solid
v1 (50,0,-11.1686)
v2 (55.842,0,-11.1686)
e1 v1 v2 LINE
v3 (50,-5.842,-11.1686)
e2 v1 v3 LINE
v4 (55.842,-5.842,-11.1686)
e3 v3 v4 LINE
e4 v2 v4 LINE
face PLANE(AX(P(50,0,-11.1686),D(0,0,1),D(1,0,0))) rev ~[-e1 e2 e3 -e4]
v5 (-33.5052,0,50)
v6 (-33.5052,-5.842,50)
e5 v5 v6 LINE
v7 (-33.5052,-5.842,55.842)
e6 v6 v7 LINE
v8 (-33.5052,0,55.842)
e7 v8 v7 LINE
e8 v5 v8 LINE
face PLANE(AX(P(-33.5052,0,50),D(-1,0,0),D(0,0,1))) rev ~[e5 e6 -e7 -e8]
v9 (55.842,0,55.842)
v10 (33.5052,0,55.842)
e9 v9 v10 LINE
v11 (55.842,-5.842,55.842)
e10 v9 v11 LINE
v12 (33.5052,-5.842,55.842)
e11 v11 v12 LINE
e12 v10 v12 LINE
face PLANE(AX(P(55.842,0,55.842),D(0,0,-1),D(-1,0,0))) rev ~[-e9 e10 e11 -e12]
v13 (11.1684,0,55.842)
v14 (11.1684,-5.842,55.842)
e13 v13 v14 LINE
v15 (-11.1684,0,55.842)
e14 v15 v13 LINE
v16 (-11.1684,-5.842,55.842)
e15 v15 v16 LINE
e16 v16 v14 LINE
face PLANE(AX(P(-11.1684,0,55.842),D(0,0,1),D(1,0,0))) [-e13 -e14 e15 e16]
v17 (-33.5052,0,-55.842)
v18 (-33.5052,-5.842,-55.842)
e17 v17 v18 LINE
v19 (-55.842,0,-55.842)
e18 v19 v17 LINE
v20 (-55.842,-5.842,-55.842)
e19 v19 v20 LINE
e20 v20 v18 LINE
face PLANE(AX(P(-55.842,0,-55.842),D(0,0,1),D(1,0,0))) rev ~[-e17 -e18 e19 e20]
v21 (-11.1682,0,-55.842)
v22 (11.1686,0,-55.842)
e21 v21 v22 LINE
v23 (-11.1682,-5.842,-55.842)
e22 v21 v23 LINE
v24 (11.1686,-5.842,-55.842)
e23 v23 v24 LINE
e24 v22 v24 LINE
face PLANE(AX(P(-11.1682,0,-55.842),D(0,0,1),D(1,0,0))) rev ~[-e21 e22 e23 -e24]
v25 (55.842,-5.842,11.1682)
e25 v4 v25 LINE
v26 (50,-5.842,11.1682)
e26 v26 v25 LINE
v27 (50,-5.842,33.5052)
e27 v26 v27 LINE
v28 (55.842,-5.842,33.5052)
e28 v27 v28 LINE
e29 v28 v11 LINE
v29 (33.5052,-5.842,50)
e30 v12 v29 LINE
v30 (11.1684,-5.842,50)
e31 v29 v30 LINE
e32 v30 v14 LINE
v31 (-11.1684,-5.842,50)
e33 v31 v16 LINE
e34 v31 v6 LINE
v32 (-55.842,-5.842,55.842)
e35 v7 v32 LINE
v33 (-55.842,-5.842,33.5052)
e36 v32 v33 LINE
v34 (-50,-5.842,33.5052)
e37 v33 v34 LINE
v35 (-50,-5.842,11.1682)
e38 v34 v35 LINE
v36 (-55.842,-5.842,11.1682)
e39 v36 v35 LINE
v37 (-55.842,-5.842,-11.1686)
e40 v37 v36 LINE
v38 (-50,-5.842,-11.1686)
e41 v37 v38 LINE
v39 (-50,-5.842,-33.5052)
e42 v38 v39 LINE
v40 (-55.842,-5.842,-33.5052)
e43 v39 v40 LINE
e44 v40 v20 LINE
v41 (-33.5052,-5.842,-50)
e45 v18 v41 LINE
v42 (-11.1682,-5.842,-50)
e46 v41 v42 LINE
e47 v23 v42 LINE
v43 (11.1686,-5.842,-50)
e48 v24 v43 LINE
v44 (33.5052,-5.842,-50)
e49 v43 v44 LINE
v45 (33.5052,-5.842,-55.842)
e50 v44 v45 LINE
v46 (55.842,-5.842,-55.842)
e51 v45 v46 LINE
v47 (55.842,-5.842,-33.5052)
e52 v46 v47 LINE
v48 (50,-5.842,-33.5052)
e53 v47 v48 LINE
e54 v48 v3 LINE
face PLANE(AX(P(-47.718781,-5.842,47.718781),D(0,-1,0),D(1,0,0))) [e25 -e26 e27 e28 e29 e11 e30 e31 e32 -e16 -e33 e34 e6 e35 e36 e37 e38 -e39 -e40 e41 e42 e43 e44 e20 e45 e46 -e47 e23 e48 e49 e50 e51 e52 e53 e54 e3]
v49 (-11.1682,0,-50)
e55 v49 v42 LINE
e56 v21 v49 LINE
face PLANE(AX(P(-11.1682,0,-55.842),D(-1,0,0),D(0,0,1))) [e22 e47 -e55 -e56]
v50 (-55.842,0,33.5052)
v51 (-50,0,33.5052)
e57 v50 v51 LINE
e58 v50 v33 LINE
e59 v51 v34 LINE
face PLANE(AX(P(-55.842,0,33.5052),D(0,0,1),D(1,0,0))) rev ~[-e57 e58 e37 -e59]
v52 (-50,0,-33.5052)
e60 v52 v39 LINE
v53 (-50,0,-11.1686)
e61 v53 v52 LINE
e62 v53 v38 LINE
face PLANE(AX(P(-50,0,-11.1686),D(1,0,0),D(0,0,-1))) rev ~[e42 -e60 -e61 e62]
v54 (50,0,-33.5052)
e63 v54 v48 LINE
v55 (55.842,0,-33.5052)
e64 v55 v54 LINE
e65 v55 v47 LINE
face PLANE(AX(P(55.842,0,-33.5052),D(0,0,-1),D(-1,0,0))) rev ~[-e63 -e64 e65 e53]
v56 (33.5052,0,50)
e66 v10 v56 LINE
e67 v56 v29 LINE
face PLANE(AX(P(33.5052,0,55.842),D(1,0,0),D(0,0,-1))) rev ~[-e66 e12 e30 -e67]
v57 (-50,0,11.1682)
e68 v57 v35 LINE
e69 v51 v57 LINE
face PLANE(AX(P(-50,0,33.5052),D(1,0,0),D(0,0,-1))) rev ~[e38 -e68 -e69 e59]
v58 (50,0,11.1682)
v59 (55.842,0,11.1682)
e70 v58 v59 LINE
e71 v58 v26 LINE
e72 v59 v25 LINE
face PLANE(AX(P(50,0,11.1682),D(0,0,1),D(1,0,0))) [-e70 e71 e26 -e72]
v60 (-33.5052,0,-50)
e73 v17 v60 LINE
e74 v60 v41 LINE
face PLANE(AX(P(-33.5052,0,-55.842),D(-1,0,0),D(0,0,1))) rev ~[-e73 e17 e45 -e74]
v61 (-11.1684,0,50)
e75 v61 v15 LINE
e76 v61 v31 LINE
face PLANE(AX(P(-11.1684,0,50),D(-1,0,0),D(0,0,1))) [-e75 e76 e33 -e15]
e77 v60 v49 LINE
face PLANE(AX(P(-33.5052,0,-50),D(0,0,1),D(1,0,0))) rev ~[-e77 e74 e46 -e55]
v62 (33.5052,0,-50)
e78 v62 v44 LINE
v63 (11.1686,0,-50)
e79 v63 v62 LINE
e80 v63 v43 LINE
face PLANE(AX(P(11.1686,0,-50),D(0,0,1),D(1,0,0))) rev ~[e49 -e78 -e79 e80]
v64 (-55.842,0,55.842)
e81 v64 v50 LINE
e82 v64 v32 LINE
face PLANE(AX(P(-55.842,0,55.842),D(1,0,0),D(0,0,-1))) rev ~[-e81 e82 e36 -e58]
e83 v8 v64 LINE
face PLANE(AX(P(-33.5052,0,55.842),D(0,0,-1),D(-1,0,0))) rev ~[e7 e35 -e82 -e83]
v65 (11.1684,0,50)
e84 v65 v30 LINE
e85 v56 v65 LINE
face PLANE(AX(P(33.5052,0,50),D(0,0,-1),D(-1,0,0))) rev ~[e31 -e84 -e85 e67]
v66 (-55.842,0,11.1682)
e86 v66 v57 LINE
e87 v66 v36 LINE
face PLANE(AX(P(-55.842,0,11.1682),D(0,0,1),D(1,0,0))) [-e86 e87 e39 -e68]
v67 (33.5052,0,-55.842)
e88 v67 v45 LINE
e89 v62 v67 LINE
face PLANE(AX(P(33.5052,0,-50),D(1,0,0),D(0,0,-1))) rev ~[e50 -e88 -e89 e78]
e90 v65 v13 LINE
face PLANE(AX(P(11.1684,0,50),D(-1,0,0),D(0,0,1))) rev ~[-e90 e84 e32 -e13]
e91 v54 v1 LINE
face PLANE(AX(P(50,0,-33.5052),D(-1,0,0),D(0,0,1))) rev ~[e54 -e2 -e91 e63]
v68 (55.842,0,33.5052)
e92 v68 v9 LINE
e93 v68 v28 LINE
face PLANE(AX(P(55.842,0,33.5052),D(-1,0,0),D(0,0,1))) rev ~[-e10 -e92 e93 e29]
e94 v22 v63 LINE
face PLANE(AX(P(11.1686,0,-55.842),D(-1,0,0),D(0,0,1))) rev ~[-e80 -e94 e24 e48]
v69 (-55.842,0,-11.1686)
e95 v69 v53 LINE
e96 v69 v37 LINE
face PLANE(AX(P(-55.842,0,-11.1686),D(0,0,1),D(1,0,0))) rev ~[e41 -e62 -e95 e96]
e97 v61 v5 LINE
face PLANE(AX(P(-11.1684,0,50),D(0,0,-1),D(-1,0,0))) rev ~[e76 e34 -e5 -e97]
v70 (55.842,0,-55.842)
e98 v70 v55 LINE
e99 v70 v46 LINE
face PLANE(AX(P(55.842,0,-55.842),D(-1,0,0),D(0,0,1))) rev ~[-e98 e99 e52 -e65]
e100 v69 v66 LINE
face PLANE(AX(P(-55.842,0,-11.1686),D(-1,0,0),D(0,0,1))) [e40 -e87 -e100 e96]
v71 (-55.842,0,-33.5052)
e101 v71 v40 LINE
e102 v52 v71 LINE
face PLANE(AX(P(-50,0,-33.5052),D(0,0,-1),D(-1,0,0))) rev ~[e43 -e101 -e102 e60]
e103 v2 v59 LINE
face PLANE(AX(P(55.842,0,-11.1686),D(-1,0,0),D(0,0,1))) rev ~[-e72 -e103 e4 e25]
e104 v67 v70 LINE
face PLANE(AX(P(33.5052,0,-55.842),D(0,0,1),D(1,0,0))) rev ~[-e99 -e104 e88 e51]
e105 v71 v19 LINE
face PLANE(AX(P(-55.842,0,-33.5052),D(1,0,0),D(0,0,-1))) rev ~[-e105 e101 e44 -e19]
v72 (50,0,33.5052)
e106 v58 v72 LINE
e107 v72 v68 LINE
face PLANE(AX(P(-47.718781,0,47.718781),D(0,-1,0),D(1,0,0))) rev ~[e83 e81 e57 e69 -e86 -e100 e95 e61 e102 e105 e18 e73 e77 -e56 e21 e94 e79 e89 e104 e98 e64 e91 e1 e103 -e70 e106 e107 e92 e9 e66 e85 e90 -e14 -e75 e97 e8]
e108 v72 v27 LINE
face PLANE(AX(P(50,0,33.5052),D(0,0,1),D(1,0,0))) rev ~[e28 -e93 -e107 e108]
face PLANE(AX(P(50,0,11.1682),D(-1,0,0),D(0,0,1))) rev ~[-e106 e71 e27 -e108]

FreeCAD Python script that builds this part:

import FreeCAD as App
import Part
import Sketcher
from FreeCAD import Vector
Q = App.Units.Quantity


def add_polygon(sketch, points):
    """Adds a closed chain of lines whose ends are joined by coincident constraints."""
    first, n = sketch.GeometryCount, len(points)
    for a, b in zip(points, points[1:] + points[:1]):
        sketch.addGeometry(Part.LineSegment(App.Vector(*a, 0), App.Vector(*b, 0)), False)
    for i in range(n):
        sketch.addConstraint(Sketcher.Constraint("Coincident", first + i, 2, first + (i + 1) % n, 1))

doc = App.newDocument("Part")
body = doc.addObject("PartDesign::Body", "Body")

sketch1 = body.newObject("Sketcher::SketchObject", "Sketch")
sketch1.AttachmentSupport = (doc.getObject("XZ_Plane"), [""])
sketch1.MapMode = "FlatFace"
add_polygon(sketch1, [(-34, 50), (-34, 56), (-56, 56), (-56, 34), (-50, 34), (-50, 11), (-56, 11), (-56, -11), (-50, -11), (-50, -34), (-56, -34), (-56, -56), (-34, -56), (-34, -50), (-11, -50), (-11, -56), (11, -56), (11, -50), (34, -50), (34, -56), (56, -56), (56, -34), (50, -34), (50, -11), (56, -11), (56, 11), (50, 11), (50, 34), (56, 34), (56, 56), (34, 56), (34, 50), (11, 50), (11, 56), (-11, 56), (-11, 50)])
sketch1.addConstraint([
    Sketcher.Constraint("Vertical", 0),
    Sketcher.Constraint("Horizontal", 1),
    Sketcher.Constraint("Vertical", 2),
    Sketcher.Constraint("Horizontal", 3),
    Sketcher.Constraint("Vertical", 4),
    Sketcher.Constraint("Horizontal", 5),
    Sketcher.Constraint("Vertical", 6),
    Sketcher.Constraint("Horizontal", 7),
    Sketcher.Constraint("Vertical", 8),
    Sketcher.Constraint("Horizontal", 9),
    Sketcher.Constraint("Vertical", 10),
    Sketcher.Constraint("Horizontal", 11),
    Sketcher.Constraint("Vertical", 12),
    Sketcher.Constraint("Horizontal", 13),
    Sketcher.Constraint("Vertical", 14),
    Sketcher.Constraint("Horizontal", 15),
    Sketcher.Constraint("Vertical", 16),
    Sketcher.Constraint("Horizontal", 17),
    Sketcher.Constraint("Vertical", 18),
    Sketcher.Constraint("Horizontal", 19),
    Sketcher.Constraint("Vertical", 20),
    Sketcher.Constraint("Horizontal", 21),
    Sketcher.Constraint("Vertical", 22),
    Sketcher.Constraint("Horizontal", 23),
    Sketcher.Constraint("Vertical", 24),
    Sketcher.Constraint("Horizontal", 25),
    Sketcher.Constraint("Vertical", 26),
    Sketcher.Constraint("Horizontal", 27),
    Sketcher.Constraint("Vertical", 28),
    Sketcher.Constraint("Horizontal", 29),
    Sketcher.Constraint("Vertical", 30),
    Sketcher.Constraint("Horizontal", 31),
    Sketcher.Constraint("Vertical", 32),
    Sketcher.Constraint("Horizontal", 33),
    Sketcher.Constraint("Vertical", 34),
    Sketcher.Constraint("Horizontal", 35),
    Sketcher.Constraint("Symmetric", 0, 2, 18, 2, -1, 1),
    Sketcher.Constraint("Symmetric", 2, 2, 20, 2, -1, 1),
    Sketcher.Constraint("Symmetric", 8, 2, 26, 2, -1, 1),
    Sketcher.Constraint("Symmetric", 10, 2, 28, 2, -1, 1),
    Sketcher.Constraint("Symmetric", 12, 2, 30, 2, -1, 1),
    Sketcher.Constraint("Symmetric", 12, 2, 17, 2, -2),
    Sketcher.Constraint("Symmetric", 10, 2, 19, 2, -2),
    Sketcher.Constraint("Symmetric", 8, 2, 21, 2, -2),
    Sketcher.Constraint("Symmetric", 6, 2, 23, 2, -2),
    Sketcher.Constraint("Symmetric", 4, 2, 25, 2, -2),
    Sketcher.Constraint("Symmetric", 31, 2, 34, 2, -2),
    Sketcher.Constraint("Horizontal", 11, 2, 14, 2),
    Sketcher.Constraint("Horizontal", 29, 2, 32, 2),
    Sketcher.Constraint("Vertical", 2, 2, 5, 2),
    Sketcher.Constraint("Equal", 11, 15),
    Sketcher.Constraint("Equal", 29, 31),
    Sketcher.Constraint("Equal", 31, 33),
    Sketcher.Constraint("Equal", 27, 0),
    Sketcher.Constraint("Equal", 35, 2),
    Sketcher.Constraint("Equal", 13, 4),
    Sketcher.Constraint("Equal", 2, 6),
    Sketcher.Constraint("Equal", 17, 8),
    Sketcher.Constraint("DistanceX", 3, 1, 3, 2, Q("0.23 in")),
    Sketcher.Constraint("DistanceX", 1, 2, 1, 1, Q("22.3368 mm")),
    Sketcher.Constraint("DistanceX", 13, 1, 13, 2, Q("22.337 mm")),
])
pad1 = body.newObject("PartDesign::Pad", "Pad")
pad1.Profile = sketch1
pad1.Length = Q("0.23 in")

doc.recompute()
